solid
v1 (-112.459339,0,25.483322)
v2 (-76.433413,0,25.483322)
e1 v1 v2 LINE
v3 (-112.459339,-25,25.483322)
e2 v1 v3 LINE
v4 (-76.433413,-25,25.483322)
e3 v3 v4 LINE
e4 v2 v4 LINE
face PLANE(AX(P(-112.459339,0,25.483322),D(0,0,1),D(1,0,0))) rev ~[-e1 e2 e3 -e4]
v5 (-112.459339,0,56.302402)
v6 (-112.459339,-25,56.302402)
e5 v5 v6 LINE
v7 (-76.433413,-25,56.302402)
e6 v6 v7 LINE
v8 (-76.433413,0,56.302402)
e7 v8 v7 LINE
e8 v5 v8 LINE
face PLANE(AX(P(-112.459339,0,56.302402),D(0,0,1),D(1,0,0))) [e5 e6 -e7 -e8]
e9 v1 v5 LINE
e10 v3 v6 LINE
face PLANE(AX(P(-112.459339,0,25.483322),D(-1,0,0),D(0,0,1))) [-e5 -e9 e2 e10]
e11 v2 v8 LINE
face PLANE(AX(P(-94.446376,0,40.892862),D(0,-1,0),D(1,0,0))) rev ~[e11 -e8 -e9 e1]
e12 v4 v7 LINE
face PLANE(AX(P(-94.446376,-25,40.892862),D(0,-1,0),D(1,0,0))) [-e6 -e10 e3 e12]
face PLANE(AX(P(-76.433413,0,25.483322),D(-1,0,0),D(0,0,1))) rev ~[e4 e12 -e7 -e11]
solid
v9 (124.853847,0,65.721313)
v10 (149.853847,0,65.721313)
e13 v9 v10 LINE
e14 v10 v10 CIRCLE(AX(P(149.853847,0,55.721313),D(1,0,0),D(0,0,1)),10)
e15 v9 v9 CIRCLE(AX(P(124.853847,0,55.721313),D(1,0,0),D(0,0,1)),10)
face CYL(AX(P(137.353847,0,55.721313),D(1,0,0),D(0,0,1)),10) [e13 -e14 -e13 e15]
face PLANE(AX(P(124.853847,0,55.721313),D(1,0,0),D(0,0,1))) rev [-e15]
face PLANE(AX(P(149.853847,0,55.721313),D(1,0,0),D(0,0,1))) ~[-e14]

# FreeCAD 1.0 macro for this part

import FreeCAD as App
import Part
import Sketcher

doc = App.newDocument("Part")
params = doc.addObject("Spreadsheet::Sheet", "Params")
for row, (alias, value) in enumerate([
    ("pad1_length", "25 mm"),
    ("sketch2_width", "25 mm"),
    ("sketch2_height", "10 mm"),
    ("revolution_angle", "360 deg"),
], start=1):
    params.set(f"A{row}", alias)
    params.set(f"B{row}", "=" + value)
    params.setAlias(f"B{row}", alias)

body = doc.addObject("PartDesign::Body", "Body")

sketch1 = body.newObject("Sketcher::SketchObject", "Sketch")
sketch1.AttachmentSupport = (doc.getObject("XZ_Plane"), [""])
sketch1.MapMode = "FlatFace"
sketch1.addGeometry(Part.LineSegment(App.Vector(-112, 56, 0), App.Vector(-112, 25, 0)), False)
sketch1.addGeometry(Part.LineSegment(App.Vector(-112, 25, 0), App.Vector(-76, 25, 0)), False)
sketch1.addGeometry(Part.LineSegment(App.Vector(-76, 25, 0), App.Vector(-76, 56, 0)), False)
sketch1.addGeometry(Part.LineSegment(App.Vector(-76, 56, 0), App.Vector(-112, 56, 0)), False)
sketch1.addConstraint(Sketcher.Constraint("Coincident", 0, 2, 1, 1))
sketch1.addConstraint(Sketcher.Constraint("Coincident", 1, 2, 2, 1))
sketch1.addConstraint(Sketcher.Constraint("Coincident", 2, 2, 3, 1))
sketch1.addConstraint(Sketcher.Constraint("Coincident", 3, 2, 0, 1))
sketch1.addConstraint(Sketcher.Constraint("Vertical", 0))
sketch1.addConstraint(Sketcher.Constraint("Horizontal", 1))
sketch1.addConstraint(Sketcher.Constraint("Vertical", 2))
sketch1.addConstraint(Sketcher.Constraint("Horizontal", 3))
sketch1.addConstraint(Sketcher.Constraint("DistanceY", 0, 2, 0, 1, 30.819079))
sketch1.addConstraint(Sketcher.Constraint("DistanceY", -1, 1, 2, 2, 56.302402))
sketch1.addConstraint(Sketcher.Constraint("DistanceX", 1, 1, 1, 2, 36.025926))
sketch1.addConstraint(Sketcher.Constraint("DistanceX", 0, 2, -1, 1, 112.459339))
pad1 = body.newObject("PartDesign::Pad", "Pad")
pad1.Profile = sketch1
pad1.setExpression("Length", "Params.pad1_length")
body2 = doc.addObject("PartDesign::Body", "Body001")

sketch2 = body2.newObject("Sketcher::SketchObject", "Sketch001")
sketch2.AttachmentSupport = (doc.getObject("XZ_Plane001"), [""])
sketch2.MapMode = "FlatFace"
sketch2.addGeometry(Part.LineSegment(App.Vector(125, 66, 0), App.Vector(125, 56, 0)), False)
sketch2.addGeometry(Part.LineSegment(App.Vector(125, 56, 0), App.Vector(150, 56, 0)), False)
sketch2.addGeometry(Part.LineSegment(App.Vector(150, 56, 0), App.Vector(150, 66, 0)), False)
sketch2.addGeometry(Part.LineSegment(App.Vector(150, 66, 0), App.Vector(125, 66, 0)), False)
sketch2.addGeometry(Part.LineSegment(App.Vector(125, 56, 0), App.Vector(150, 56, 0)), True)
sketch2.addConstraint(Sketcher.Constraint("Coincident", 0, 2, 1, 1))
sketch2.addConstraint(Sketcher.Constraint("Coincident", 1, 2, 2, 1))
sketch2.addConstraint(Sketcher.Constraint("Coincident", 2, 2, 3, 1))
sketch2.addConstraint(Sketcher.Constraint("Coincident", 3, 2, 0, 1))
sketch2.addConstraint(Sketcher.Constraint("Vertical", 0))
sketch2.addConstraint(Sketcher.Constraint("Horizontal", 1))
sketch2.addConstraint(Sketcher.Constraint("Vertical", 2))
sketch2.addConstraint(Sketcher.Constraint("Horizontal", 3))
sketch2.addConstraint(Sketcher.Constraint("Horizontal", 4))
sketch2.addConstraint(Sketcher.Constraint("Coincident", 4, 1, 0, 2))
sketch2.addConstraint(Sketcher.Constraint("Vertical", 2, 2, 4, 2))
sketch2.addConstraint(Sketcher.Constraint("DistanceX", 1, 1, 1, 2, 25.0))
sketch2.addConstraint(Sketcher.Constraint("DistanceY", 0, 2, 0, 1, 10.0))
sketch2.addConstraint(Sketcher.Constraint("DistanceX", -1, 1, 0, 2, 124.853847))
sketch2.addConstraint(Sketcher.Constraint("DistanceY", -1, 1, 0, 2, 55.721313))
sketch2.setExpression("Constraints[11]", "Params.sketch2_width")
sketch2.setExpression("Constraints[12]", "Params.sketch2_height")
revolution = body2.newObject("PartDesign::Revolution", "Revolution")
revolution.Profile = sketch2
revolution.ReferenceAxis = (sketch2, ["Axis0"])
revolution.setExpression("Angle", "Params.revolution_angle")

doc.recompute()
